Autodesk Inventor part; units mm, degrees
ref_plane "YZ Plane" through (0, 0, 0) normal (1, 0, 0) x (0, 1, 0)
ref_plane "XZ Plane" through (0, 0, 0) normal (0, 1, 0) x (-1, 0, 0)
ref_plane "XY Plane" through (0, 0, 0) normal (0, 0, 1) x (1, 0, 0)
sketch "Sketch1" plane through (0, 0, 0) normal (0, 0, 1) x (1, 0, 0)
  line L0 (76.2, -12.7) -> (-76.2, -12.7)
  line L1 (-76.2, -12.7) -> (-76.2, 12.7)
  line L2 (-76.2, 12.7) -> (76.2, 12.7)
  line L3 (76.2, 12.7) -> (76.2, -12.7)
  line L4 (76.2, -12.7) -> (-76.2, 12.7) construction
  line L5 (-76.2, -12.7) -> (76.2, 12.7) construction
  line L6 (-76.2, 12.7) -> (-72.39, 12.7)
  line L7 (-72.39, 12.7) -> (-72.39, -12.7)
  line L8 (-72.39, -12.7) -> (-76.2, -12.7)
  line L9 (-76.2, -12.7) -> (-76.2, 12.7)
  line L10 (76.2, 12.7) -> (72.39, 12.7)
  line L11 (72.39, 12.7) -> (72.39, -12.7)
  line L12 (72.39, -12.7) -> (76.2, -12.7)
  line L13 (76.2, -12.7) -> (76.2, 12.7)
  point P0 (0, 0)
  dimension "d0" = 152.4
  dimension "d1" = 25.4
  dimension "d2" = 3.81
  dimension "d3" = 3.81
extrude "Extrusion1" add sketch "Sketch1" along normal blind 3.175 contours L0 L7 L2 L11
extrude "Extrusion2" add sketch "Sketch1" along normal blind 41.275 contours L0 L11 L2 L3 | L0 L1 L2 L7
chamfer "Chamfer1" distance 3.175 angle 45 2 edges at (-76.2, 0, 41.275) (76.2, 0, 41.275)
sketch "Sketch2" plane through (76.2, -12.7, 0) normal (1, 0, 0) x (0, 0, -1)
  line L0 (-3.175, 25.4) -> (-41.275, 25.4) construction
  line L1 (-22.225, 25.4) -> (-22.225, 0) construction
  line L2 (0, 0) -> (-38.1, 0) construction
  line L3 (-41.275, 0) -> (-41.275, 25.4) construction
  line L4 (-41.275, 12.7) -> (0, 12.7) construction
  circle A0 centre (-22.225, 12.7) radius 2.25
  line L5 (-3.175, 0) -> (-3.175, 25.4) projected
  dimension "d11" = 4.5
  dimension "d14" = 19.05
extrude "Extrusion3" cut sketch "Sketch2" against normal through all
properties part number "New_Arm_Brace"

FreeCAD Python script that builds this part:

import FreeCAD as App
import Part
import Sketcher

V = App.Vector
Q = App.Units.Quantity


def edges_at(feature, points):
    """Names of the edges that pass closest to the given points."""
    edges = feature.Shape.Edges
    near = lambda p: min(range(len(edges)), key=lambda i: edges[i].distToShape(Part.Vertex(*p))[0])
    return sorted({f"Edge{near(p) + 1}" for p in points})

doc = App.newDocument("Part")
params = doc.addObject("Spreadsheet::Sheet", "Params")
for row, (alias, value) in enumerate([
    ("sketch1_height", "1 in"),
    ("sketch1_width", "5.7 in"),
    ("pad1_length", "0.125 in"),
    ("sketch2_height", "1 in"),
    ("sketch2_width", "0.15 in"),
    ("pad2_length", "1.625 in"),
    ("chamfer_size", "0.125 in"),
], start=1):
    params.set(f"A{row}", alias)
    params.set(f"B{row}", "=" + value)
    params.setAlias(f"B{row}", alias)

body = doc.addObject("PartDesign::Body", "Body")

sketch1 = doc.addObject("Sketcher::SketchObject", "Sketch")
body.addObject(sketch1)
sketch1.AttachmentSupport = (doc.XY_Plane, [""])
sketch1.MapMode = "FlatFace"
sketch1.addGeometry(Part.LineSegment(V(-72, -13, 0), V(72, -13, 0)), False)
sketch1.addGeometry(Part.LineSegment(V(72, -13, 0), V(72, 13, 0)), False)
sketch1.addGeometry(Part.LineSegment(V(72, 13, 0), V(-72, 13, 0)), False)
sketch1.addGeometry(Part.LineSegment(V(-72, 13, 0), V(-72, -13, 0)), False)
sketch1.addConstraint(Sketcher.Constraint("Coincident", 0, 2, 1, 1))
sketch1.addConstraint(Sketcher.Constraint("Coincident", 1, 2, 2, 1))
sketch1.addConstraint(Sketcher.Constraint("Coincident", 2, 2, 3, 1))
sketch1.addConstraint(Sketcher.Constraint("Coincident", 3, 2, 0, 1))
sketch1.addConstraint(Sketcher.Constraint("Horizontal", 0))
sketch1.addConstraint(Sketcher.Constraint("Vertical", 1))
sketch1.addConstraint(Sketcher.Constraint("Horizontal", 2))
sketch1.addConstraint(Sketcher.Constraint("Vertical", 3))
sketch1.addConstraint(Sketcher.Constraint("Symmetric", 0, 2, 2, 2, -1, 1))
sketch1.addConstraint(Sketcher.Constraint("DistanceY", 1, 1, 1, 2, Q("1 in")))
sketch1.addConstraint(Sketcher.Constraint("DistanceX", 0, 1, 0, 2, Q("5.7 in")))
sketch1.setExpression("Constraints[9]", "Params.sketch1_height")
sketch1.setExpression("Constraints[10]", "Params.sketch1_width")
pad1 = doc.addObject("PartDesign::Pad", "Pad")
body.addObject(pad1)
pad1.Profile = sketch1
pad1.setExpression("Length", "Params.pad1_length")

sketch2 = doc.addObject("Sketcher::SketchObject", "Sketch001")
body.addObject(sketch2)
sketch2.AttachmentSupport = (doc.XY_Plane, [""])
sketch2.MapMode = "FlatFace"
sketch2.addGeometry(Part.LineSegment(V(72.4, -12.7, 0), V(76.2, -12.7, 0)), False)
sketch2.addGeometry(Part.LineSegment(V(76.2, -12.7, 0), V(76.2, 12.7, 0)), False)
sketch2.addGeometry(Part.LineSegment(V(76.2, 12.7, 0), V(72.4, 12.7, 0)), False)
sketch2.addGeometry(Part.LineSegment(V(72.4, 12.7, 0), V(72.4, -12.7, 0)), False)
sketch2.addGeometry(Part.LineSegment(V(-76.2, -12.7, 0), V(-72.4, -12.7, 0)), False)
sketch2.addGeometry(Part.LineSegment(V(-72.4, -12.7, 0), V(-72.4, 12.7, 0)), False)
sketch2.addGeometry(Part.LineSegment(V(-72.4, 12.7, 0), V(-76.2, 12.7, 0)), False)
sketch2.addGeometry(Part.LineSegment(V(-76.2, 12.7, 0), V(-76.2, -12.7, 0)), False)
sketch2.addConstraint(Sketcher.Constraint("Coincident", 0, 2, 1, 1))
sketch2.addConstraint(Sketcher.Constraint("Coincident", 1, 2, 2, 1))
sketch2.addConstraint(Sketcher.Constraint("Coincident", 2, 2, 3, 1))
sketch2.addConstraint(Sketcher.Constraint("Coincident", 3, 2, 0, 1))
sketch2.addConstraint(Sketcher.Constraint("Coincident", 4, 2, 5, 1))
sketch2.addConstraint(Sketcher.Constraint("Coincident", 5, 2, 6, 1))
sketch2.addConstraint(Sketcher.Constraint("Coincident", 6, 2, 7, 1))
sketch2.addConstraint(Sketcher.Constraint("Coincident", 7, 2, 4, 1))
sketch2.addConstraint(Sketcher.Constraint("Horizontal", 0))
sketch2.addConstraint(Sketcher.Constraint("Vertical", 1))
sketch2.addConstraint(Sketcher.Constraint("Horizontal", 2))
sketch2.addConstraint(Sketcher.Constraint("Vertical", 3))
sketch2.addConstraint(Sketcher.Constraint("Horizontal", 4))
sketch2.addConstraint(Sketcher.Constraint("Vertical", 5))
sketch2.addConstraint(Sketcher.Constraint("Horizontal", 6))
sketch2.addConstraint(Sketcher.Constraint("Vertical", 7))
sketch2.addConstraint(Sketcher.Constraint("Symmetric", 2, 2, 4, 2, -1, 1))
sketch2.addConstraint(Sketcher.Constraint("Symmetric", 0, 2, 6, 2, -1, 1))
sketch2.addConstraint(Sketcher.Constraint("Horizontal", 3, 2, 4, 2))
sketch2.addConstraint(Sketcher.Constraint("DistanceY", 1, 1, 1, 2, Q("1 in")))
sketch2.addConstraint(Sketcher.Constraint("DistanceX", 6, 2, 1, 2, Q("6 in")))
sketch2.addConstraint(Sketcher.Constraint("DistanceX", 0, 1, 0, 2, Q("0.15 in")))
sketch2.setExpression("Constraints[19]", "Params.sketch2_height")
sketch2.setExpression("Constraints[21]", "Params.sketch2_width")
pad2 = doc.addObject("PartDesign::Pad", "Pad001")
body.addObject(pad2)
pad2.Profile = sketch2
pad2.setExpression("Length", "Params.pad2_length")
doc.recompute()

chamfer = doc.addObject("PartDesign::Chamfer", "Chamfer")
body.addObject(chamfer)
chamfer.Base = (pad2, edges_at(pad2, [(-76.2, 0, 41.275), (76.2, 0, 41.275)]))
chamfer.setExpression("Size", "Params.chamfer_size")

sketch3 = doc.addObject("Sketcher::SketchObject", "Sketch002")
body.addObject(sketch3)
sketch3.AttachmentSupport = (doc.YZ_Plane, [""])
sketch3.MapMode = "FlatFace"
sketch3.AttachmentOffset = App.Placement(V(0, 0, 3 * 25.4), App.Rotation())
sketch3.addGeometry(Part.Circle(V(0, 22.2, 0), V(0, 0, 1), 2.2), False)
sketch3.addConstraint(Sketcher.Constraint("PointOnObject", 0, 3, -2))
sketch3.addConstraint(Sketcher.Constraint("Diameter", 0, Q("4.5 mm")))
sketch3.addConstraint(Sketcher.Constraint("DistanceY", -1, 1, 0, 3, Q("0.875 in")))
pocket1 = doc.addObject("PartDesign::Pocket", "Pocket")
body.addObject(pocket1)
pocket1.Profile = sketch3
pocket1.Type = "ThroughAll"

doc.recompute()
